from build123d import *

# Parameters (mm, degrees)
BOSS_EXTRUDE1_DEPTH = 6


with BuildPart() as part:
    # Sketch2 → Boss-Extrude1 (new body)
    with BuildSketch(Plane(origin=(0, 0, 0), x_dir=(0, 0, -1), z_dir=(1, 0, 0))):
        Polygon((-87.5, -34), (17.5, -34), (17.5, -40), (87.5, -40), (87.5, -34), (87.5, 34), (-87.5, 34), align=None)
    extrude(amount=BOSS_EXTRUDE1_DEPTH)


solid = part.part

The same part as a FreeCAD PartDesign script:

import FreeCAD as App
import Part
import Sketcher

V = App.Vector

doc = App.newDocument("Part")
body = doc.addObject("PartDesign::Body", "Body")

# Sketch on YZ plane
sketch1 = body.newObject("Sketcher::SketchObject", "Sketch")
sketch1.AttachmentSupport = (doc.getObject("YZ_Plane"), [""])
sketch1.MapMode = "FlatFace"
sketch1.addGeometry(Part.LineSegment(V(-34, 88, 0), V(-34, -18, 0)), False)
sketch1.addGeometry(Part.LineSegment(V(-34, -18, 0), V(-40, -18, 0)), False)
sketch1.addGeometry(Part.LineSegment(V(-40, -18, 0), V(-40, -88, 0)), False)
sketch1.addGeometry(Part.LineSegment(V(-40, -88, 0), V(34, -88, 0)), False)
sketch1.addGeometry(Part.LineSegment(V(34, -88, 0), V(34, 88, 0)), False)
sketch1.addGeometry(Part.LineSegment(V(34, 88, 0), V(-34, 88, 0)), False)
sketch1.addConstraint(Sketcher.Constraint("Coincident", 0, 2, 1, 1))
sketch1.addConstraint(Sketcher.Constraint("Coincident", 1, 2, 2, 1))
sketch1.addConstraint(Sketcher.Constraint("Coincident", 2, 2, 3, 1))
sketch1.addConstraint(Sketcher.Constraint("Coincident", 3, 2, 4, 1))
sketch1.addConstraint(Sketcher.Constraint("Coincident", 4, 2, 5, 1))
sketch1.addConstraint(Sketcher.Constraint("Coincident", 5, 2, 0, 1))
sketch1.addConstraint(Sketcher.Constraint("Vertical", 0))
sketch1.addConstraint(Sketcher.Constraint("Horizontal", 1))
sketch1.addConstraint(Sketcher.Constraint("Vertical", 2))
sketch1.addConstraint(Sketcher.Constraint("Horizontal", 3))
sketch1.addConstraint(Sketcher.Constraint("Vertical", 4))
sketch1.addConstraint(Sketcher.Constraint("Horizontal", 5))
sketch1.addConstraint(Sketcher.Constraint("Symmetric", 3, 2, 5, 2, -1, 1))
sketch1.addConstraint(Sketcher.Constraint("DistanceX", 1, 2, 1, 1, 6.0))
sketch1.addConstraint(Sketcher.Constraint("DistanceX", 3, 1, 3, 2, 74.0))
sketch1.addConstraint(Sketcher.Constraint("DistanceY", 0, 2, 0, 1, 105.0))
sketch1.addConstraint(Sketcher.Constraint("DistanceY", 2, 2, 2, 1, 70.0))
pad1 = body.newObject("PartDesign::Pad", "Pad")
pad1.Profile = sketch1
pad1.Length = 6

doc.recompute()
